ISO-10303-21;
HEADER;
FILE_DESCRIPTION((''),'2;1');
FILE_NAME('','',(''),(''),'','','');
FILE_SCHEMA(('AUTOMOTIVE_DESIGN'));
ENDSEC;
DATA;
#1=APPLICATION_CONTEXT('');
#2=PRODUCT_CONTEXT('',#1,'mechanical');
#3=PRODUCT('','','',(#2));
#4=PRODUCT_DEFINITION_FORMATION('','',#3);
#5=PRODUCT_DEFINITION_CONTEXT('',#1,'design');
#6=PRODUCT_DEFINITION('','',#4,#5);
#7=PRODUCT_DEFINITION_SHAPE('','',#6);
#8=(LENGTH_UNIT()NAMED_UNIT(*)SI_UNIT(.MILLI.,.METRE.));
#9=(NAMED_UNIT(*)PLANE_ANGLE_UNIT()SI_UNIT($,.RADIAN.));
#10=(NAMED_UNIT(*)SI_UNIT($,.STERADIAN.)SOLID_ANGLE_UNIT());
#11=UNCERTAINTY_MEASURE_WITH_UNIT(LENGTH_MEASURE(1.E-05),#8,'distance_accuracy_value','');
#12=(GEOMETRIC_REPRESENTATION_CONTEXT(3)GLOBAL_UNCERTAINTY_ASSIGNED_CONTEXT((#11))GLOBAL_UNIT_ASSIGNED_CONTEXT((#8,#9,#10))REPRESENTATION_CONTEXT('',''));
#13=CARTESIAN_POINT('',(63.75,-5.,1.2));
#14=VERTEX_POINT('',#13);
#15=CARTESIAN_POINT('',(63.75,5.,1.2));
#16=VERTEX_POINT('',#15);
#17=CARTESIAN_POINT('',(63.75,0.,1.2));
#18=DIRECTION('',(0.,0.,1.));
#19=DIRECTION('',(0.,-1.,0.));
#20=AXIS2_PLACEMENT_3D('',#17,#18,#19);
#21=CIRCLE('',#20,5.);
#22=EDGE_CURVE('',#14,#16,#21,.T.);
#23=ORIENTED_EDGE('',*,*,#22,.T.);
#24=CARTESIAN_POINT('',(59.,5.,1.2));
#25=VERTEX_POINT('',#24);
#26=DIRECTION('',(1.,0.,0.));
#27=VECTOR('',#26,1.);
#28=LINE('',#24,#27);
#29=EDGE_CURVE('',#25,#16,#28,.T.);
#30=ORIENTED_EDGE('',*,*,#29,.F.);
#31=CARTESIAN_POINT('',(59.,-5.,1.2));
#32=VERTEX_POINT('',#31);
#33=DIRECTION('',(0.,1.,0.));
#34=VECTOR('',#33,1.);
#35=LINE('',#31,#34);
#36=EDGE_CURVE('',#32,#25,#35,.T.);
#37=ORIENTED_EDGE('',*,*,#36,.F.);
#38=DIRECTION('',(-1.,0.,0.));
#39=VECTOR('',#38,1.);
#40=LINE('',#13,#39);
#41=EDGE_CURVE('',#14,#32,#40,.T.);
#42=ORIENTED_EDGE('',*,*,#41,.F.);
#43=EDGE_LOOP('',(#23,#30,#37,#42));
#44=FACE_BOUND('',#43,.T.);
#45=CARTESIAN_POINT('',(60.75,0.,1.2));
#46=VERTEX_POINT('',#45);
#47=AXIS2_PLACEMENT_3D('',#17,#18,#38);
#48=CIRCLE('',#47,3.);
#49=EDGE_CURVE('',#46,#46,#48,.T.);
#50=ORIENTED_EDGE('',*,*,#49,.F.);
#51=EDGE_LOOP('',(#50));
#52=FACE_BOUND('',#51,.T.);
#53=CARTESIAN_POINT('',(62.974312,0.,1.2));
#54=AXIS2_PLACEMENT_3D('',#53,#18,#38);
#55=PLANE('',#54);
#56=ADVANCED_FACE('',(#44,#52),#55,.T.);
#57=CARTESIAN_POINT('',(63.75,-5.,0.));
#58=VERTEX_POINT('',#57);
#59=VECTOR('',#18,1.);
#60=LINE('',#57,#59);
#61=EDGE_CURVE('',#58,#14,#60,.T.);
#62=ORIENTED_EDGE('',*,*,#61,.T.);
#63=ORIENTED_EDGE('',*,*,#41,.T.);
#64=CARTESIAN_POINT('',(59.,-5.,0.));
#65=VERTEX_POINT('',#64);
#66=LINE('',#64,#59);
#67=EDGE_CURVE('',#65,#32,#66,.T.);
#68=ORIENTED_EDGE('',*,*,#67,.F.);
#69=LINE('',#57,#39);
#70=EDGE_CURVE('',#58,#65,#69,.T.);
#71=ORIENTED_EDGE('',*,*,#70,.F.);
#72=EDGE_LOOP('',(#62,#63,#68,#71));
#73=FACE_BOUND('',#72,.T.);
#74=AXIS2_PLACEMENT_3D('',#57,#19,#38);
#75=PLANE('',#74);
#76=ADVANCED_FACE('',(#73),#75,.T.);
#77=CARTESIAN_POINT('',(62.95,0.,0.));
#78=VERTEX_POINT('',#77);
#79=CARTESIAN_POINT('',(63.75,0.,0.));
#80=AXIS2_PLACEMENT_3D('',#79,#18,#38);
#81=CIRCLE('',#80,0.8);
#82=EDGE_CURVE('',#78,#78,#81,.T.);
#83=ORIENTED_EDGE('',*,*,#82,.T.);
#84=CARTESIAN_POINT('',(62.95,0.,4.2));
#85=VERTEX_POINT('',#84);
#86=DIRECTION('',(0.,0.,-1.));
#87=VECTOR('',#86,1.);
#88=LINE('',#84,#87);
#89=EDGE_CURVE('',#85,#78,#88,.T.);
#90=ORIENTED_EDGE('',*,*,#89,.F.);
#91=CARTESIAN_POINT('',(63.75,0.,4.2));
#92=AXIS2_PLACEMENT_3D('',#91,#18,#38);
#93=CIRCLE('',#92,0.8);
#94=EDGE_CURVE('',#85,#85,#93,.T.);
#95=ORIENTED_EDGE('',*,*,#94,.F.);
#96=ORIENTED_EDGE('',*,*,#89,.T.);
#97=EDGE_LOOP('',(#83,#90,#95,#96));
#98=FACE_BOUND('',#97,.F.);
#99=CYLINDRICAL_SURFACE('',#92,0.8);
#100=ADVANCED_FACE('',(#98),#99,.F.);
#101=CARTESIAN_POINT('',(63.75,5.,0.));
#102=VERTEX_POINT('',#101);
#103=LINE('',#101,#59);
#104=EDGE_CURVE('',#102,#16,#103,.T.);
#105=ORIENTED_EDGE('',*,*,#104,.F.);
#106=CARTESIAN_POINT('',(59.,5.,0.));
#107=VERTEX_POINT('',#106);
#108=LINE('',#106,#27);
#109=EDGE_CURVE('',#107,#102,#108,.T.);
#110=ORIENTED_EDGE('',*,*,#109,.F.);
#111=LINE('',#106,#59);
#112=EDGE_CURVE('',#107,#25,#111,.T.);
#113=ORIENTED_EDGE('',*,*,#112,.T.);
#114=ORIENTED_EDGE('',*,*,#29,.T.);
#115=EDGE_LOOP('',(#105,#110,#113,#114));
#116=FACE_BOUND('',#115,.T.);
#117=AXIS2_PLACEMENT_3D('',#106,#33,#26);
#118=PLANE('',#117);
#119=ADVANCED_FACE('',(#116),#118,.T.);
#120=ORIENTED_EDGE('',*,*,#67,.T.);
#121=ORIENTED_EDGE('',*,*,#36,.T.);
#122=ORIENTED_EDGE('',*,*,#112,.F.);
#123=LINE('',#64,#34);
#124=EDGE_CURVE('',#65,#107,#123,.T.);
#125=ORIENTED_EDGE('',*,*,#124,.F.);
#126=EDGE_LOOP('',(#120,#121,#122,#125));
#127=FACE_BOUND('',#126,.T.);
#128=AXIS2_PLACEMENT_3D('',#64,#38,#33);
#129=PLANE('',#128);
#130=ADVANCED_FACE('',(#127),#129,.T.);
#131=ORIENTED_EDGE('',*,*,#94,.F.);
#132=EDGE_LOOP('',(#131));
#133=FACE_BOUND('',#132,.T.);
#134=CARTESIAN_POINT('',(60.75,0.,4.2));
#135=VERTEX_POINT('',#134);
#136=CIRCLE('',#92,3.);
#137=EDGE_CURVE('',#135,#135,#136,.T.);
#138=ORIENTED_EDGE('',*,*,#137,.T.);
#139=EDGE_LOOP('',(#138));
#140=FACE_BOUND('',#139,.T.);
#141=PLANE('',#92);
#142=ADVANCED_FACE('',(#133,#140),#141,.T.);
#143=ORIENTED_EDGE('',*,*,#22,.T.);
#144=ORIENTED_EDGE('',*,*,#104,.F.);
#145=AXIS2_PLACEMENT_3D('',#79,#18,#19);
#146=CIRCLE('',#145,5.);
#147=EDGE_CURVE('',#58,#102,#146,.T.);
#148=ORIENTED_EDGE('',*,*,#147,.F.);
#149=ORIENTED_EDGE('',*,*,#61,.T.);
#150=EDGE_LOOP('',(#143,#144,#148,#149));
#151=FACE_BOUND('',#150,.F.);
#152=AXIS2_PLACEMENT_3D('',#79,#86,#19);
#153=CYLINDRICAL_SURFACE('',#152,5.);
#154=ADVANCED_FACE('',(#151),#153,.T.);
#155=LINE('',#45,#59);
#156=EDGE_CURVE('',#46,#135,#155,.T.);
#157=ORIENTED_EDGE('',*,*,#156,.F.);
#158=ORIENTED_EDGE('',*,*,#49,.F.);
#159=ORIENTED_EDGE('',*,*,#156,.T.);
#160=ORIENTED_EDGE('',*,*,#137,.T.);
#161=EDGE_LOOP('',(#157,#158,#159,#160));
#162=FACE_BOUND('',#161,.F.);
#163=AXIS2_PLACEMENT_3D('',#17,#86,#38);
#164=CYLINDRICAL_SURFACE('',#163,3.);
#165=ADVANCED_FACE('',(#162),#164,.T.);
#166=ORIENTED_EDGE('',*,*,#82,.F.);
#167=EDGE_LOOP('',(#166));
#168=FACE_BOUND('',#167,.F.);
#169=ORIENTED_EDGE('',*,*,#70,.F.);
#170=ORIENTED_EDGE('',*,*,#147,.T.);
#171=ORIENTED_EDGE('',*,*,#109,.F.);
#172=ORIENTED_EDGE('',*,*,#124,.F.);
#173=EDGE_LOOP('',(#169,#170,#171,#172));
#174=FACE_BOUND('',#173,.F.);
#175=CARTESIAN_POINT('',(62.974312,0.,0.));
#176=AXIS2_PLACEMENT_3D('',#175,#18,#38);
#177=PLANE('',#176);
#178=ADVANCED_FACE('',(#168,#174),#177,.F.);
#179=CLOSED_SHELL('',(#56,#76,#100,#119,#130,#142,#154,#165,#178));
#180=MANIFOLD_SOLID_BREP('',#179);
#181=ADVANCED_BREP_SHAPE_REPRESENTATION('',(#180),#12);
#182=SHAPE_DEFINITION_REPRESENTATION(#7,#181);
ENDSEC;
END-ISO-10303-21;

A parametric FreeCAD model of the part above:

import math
import FreeCAD as App
import Part
import Sketcher

V = App.Vector
Q = App.Units.Quantity

doc = App.newDocument("Part")
body = doc.addObject("PartDesign::Body", "Body")

sketch1 = body.newObject("Sketcher::SketchObject", "Sketch")
sketch1.AttachmentSupport = (doc.getObject("XY_Plane"), [""])
sketch1.MapMode = "FlatFace"
sketch1.addGeometry(Part.ArcOfCircle(Part.Circle(V(-47.8, 0, 0), V(0, 0, 1), 5), math.radians(90), math.radians(270)), False)
sketch1.addGeometry(Part.LineSegment(V(-47.8, -5, 0), V(-43, -5, 0)), False)
sketch1.addGeometry(Part.LineSegment(V(-43, -5, 0), V(-43, 5, 0)), False)
sketch1.addGeometry(Part.LineSegment(V(-43, 5, 0), V(-47.8, 5, 0)), False)
sketch1.addConstraint(Sketcher.Constraint("Tangent", 0, 2, 1, 1))
sketch1.addConstraint(Sketcher.Constraint("Coincident", 1, 2, 2, 1))
sketch1.addConstraint(Sketcher.Constraint("Coincident", 2, 2, 3, 1))
sketch1.addConstraint(Sketcher.Constraint("Tangent", 3, 2, 0, 1))
sketch1.addConstraint(Sketcher.Constraint("Horizontal", 1))
sketch1.addConstraint(Sketcher.Constraint("Vertical", 2))
sketch1.addConstraint(Sketcher.Constraint("Horizontal", 3))
sketch1.addConstraint(Sketcher.Constraint("PointOnObject", 0, 3, -1))
sketch1.addConstraint(Sketcher.Constraint("Radius", 0, Q("5 mm")))
sketch1.addConstraint(Sketcher.Constraint("DistanceX", 1, 2, -1, 1, Q("43 mm")))
sketch1.addConstraint(Sketcher.Constraint("DistanceX", 1, 1, 1, 2, Q("4.75 mm")))
pad1 = body.newObject("PartDesign::Pad", "Pad")
pad1.Profile = sketch1
pad1.Length = 1.2

sketch2 = body.newObject("Sketcher::SketchObject", "Sketch001")
sketch2.AttachmentSupport = (doc.getObject("XY_Plane"), [""])
sketch2.MapMode = "FlatFace"
sketch2.AttachmentOffset = App.Placement(V(0, 0, 1.2), App.Rotation())
sketch2.addGeometry(Part.Circle(V(-47.8, 0, 0), V(0, 0, 1), 3), False)
sketch2.addConstraint(Sketcher.Constraint("PointOnObject", 0, 3, -1))
sketch2.addConstraint(Sketcher.Constraint("Diameter", 0, Q("6 mm")))
sketch2.addConstraint(Sketcher.Constraint("DistanceX", 0, 3, -1, 1, Q("47.75 mm")))
pad2 = body.newObject("PartDesign::Pad", "Pad001")
pad2.Profile = sketch2
pad2.Length = 3

sketch3 = body.newObject("Sketcher::SketchObject", "Sketch002")
sketch3.AttachmentSupport = (doc.getObject("XY_Plane"), [""])
sketch3.MapMode = "FlatFace"
sketch3.AttachmentOffset = App.Placement(V(0, 0, 4.2), App.Rotation())
sketch3.addGeometry(Part.Circle(V(-47.8, 0, 0), V(0, 0, 1), 0.8), False)
sketch3.addConstraint(Sketcher.Constraint("PointOnObject", 0, 3, -1))
sketch3.addConstraint(Sketcher.Constraint("Diameter", 0, Q("1.6 mm")))
sketch3.addConstraint(Sketcher.Constraint("DistanceX", 0, 3, -1, 1, Q("47.75 mm")))
pocket1 = body.newObject("PartDesign::Pocket", "Pocket")
pocket1.Profile = sketch3
pocket1.Length = 5
body2 = doc.addObject("PartDesign::Body", "Body001")
doc.recompute()

body.Placement = App.Placement(V(16, 0, 0), App.Rotation(V(0, 0, 1), 180))
boolean = body2.newObject("PartDesign::Boolean", "Boolean")
boolean.Type = "Fuse"
boolean.addObjects([body])

doc.recompute()
